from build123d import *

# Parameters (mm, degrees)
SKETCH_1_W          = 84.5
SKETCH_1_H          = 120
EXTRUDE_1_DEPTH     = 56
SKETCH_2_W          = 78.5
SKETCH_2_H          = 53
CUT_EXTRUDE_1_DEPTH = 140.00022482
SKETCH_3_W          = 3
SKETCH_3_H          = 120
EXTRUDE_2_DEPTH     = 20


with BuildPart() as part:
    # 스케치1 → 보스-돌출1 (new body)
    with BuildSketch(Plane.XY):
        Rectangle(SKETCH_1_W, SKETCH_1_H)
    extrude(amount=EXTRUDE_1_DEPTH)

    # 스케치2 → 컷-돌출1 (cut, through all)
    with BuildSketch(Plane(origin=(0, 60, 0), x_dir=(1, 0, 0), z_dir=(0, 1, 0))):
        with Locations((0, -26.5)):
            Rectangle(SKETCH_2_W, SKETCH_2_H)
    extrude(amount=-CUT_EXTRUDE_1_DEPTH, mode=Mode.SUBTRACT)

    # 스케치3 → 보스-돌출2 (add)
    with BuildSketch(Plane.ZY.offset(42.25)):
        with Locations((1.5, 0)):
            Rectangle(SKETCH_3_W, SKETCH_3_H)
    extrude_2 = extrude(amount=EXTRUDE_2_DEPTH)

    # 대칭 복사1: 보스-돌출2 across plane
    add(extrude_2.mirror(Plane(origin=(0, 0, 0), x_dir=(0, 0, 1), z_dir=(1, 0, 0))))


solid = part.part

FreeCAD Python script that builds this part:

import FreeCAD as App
import Part
import Sketcher

V = App.Vector
Q = App.Units.Quantity


def add_polygon(sketch, points):
    """Adds a closed chain of lines whose ends are joined by coincident constraints."""
    first, n = sketch.GeometryCount, len(points)
    for a, b in zip(points, points[1:] + points[:1]):
        sketch.addGeometry(Part.LineSegment(App.Vector(*a, 0), App.Vector(*b, 0)), False)
    for i in range(n):
        sketch.addConstraint(Sketcher.Constraint("Coincident", first + i, 2, first + (i + 1) % n, 1))

doc = App.newDocument("Part")
body = doc.addObject("PartDesign::Body", "Body")

# Sketch on XY plane
sketch1 = doc.addObject("Sketcher::SketchObject", "Sketch")
body.addObject(sketch1)
sketch1.AttachmentSupport = (doc.XY_Plane, [""])
sketch1.MapMode = "FlatFace"
add_polygon(sketch1, [(-42, 60), (-42, -60), (42, -60), (42, 60)])  # lines 0-3
sketch1.addConstraint(Sketcher.Constraint("Vertical", 0))
sketch1.addConstraint(Sketcher.Constraint("Horizontal", 1))
sketch1.addConstraint(Sketcher.Constraint("Vertical", 2))
sketch1.addConstraint(Sketcher.Constraint("Horizontal", 3))
sketch1.addConstraint(Sketcher.Constraint("Symmetric", 0, 2, 2, 2, -1, 1))
sketch1.addConstraint(Sketcher.Constraint("DistanceY", 0, 2, 0, 1, Q("120 mm")))
sketch1.addConstraint(Sketcher.Constraint("DistanceX", 1, 1, 1, 2, Q("84.5 mm")))
pad1 = doc.addObject("PartDesign::Pad", "Pad")
body.addObject(pad1)
pad1.Profile = sketch1
pad1.Length = 56

# Sketch on XZ plane
sketch2 = doc.addObject("Sketcher::SketchObject", "Sketch001")
body.addObject(sketch2)
sketch2.AttachmentSupport = (doc.XZ_Plane, [""])
sketch2.MapMode = "FlatFace"
sketch2.AttachmentOffset = App.Placement(V(0, 0, -60), App.Rotation())
add_polygon(sketch2, [(-39, 0), (-39, 53), (39, 53), (39, 0)])  # lines 0-3
sketch2.addConstraint(Sketcher.Constraint("Vertical", 0))
sketch2.addConstraint(Sketcher.Constraint("Horizontal", 1))
sketch2.addConstraint(Sketcher.Constraint("Vertical", 2))
sketch2.addConstraint(Sketcher.Constraint("Horizontal", 3))
sketch2.addConstraint(Sketcher.Constraint("Symmetric", 2, 2, 3, 2, -1, 1))
sketch2.addConstraint(Sketcher.Constraint("DistanceY", 0, 1, 0, 2, Q("53 mm")))
sketch2.addConstraint(Sketcher.Constraint("DistanceX", 1, 1, 1, 2, Q("78.5 mm")))
pocket1 = doc.addObject("PartDesign::Pocket", "Pocket")
body.addObject(pocket1)
pocket1.Profile = sketch2
pocket1.Type = "ThroughAll"
pocket1.Reversed = True

# Sketch on YZ plane
sketch3 = doc.addObject("Sketcher::SketchObject", "Sketch002")
body.addObject(sketch3)
sketch3.AttachmentSupport = (doc.YZ_Plane, [""])
sketch3.MapMode = "FlatFace"
sketch3.AttachmentOffset = App.Placement(V(0, 0, -42.25), App.Rotation())
add_polygon(sketch3, [(60, 0), (-60, 0), (-60, 3), (60, 3)])  # lines 0-3
sketch3.addConstraint(Sketcher.Constraint("Horizontal", 0))
sketch3.addConstraint(Sketcher.Constraint("Vertical", 1))
sketch3.addConstraint(Sketcher.Constraint("Horizontal", 2))
sketch3.addConstraint(Sketcher.Constraint("Vertical", 3))
sketch3.addConstraint(Sketcher.Constraint("Symmetric", 0, 2, 3, 2, -1, 1))
sketch3.addConstraint(Sketcher.Constraint("DistanceX", 0, 2, 0, 1, Q("120 mm")))
sketch3.addConstraint(Sketcher.Constraint("DistanceY", 1, 1, 1, 2, Q("3 mm")))
pad2 = doc.addObject("PartDesign::Pad", "Pad001")
body.addObject(pad2)
pad2.Profile = sketch3
pad2.Length = 20
pad2.Reversed = True
doc.recompute()

mirrored = doc.addObject("PartDesign::Mirrored", "Mirrored")
body.addObject(mirrored)
mirrored.Originals = [pad2]
mirrored.MirrorPlane = (doc.YZ_Plane, [""])
body.Tip = mirrored

doc.recompute()
